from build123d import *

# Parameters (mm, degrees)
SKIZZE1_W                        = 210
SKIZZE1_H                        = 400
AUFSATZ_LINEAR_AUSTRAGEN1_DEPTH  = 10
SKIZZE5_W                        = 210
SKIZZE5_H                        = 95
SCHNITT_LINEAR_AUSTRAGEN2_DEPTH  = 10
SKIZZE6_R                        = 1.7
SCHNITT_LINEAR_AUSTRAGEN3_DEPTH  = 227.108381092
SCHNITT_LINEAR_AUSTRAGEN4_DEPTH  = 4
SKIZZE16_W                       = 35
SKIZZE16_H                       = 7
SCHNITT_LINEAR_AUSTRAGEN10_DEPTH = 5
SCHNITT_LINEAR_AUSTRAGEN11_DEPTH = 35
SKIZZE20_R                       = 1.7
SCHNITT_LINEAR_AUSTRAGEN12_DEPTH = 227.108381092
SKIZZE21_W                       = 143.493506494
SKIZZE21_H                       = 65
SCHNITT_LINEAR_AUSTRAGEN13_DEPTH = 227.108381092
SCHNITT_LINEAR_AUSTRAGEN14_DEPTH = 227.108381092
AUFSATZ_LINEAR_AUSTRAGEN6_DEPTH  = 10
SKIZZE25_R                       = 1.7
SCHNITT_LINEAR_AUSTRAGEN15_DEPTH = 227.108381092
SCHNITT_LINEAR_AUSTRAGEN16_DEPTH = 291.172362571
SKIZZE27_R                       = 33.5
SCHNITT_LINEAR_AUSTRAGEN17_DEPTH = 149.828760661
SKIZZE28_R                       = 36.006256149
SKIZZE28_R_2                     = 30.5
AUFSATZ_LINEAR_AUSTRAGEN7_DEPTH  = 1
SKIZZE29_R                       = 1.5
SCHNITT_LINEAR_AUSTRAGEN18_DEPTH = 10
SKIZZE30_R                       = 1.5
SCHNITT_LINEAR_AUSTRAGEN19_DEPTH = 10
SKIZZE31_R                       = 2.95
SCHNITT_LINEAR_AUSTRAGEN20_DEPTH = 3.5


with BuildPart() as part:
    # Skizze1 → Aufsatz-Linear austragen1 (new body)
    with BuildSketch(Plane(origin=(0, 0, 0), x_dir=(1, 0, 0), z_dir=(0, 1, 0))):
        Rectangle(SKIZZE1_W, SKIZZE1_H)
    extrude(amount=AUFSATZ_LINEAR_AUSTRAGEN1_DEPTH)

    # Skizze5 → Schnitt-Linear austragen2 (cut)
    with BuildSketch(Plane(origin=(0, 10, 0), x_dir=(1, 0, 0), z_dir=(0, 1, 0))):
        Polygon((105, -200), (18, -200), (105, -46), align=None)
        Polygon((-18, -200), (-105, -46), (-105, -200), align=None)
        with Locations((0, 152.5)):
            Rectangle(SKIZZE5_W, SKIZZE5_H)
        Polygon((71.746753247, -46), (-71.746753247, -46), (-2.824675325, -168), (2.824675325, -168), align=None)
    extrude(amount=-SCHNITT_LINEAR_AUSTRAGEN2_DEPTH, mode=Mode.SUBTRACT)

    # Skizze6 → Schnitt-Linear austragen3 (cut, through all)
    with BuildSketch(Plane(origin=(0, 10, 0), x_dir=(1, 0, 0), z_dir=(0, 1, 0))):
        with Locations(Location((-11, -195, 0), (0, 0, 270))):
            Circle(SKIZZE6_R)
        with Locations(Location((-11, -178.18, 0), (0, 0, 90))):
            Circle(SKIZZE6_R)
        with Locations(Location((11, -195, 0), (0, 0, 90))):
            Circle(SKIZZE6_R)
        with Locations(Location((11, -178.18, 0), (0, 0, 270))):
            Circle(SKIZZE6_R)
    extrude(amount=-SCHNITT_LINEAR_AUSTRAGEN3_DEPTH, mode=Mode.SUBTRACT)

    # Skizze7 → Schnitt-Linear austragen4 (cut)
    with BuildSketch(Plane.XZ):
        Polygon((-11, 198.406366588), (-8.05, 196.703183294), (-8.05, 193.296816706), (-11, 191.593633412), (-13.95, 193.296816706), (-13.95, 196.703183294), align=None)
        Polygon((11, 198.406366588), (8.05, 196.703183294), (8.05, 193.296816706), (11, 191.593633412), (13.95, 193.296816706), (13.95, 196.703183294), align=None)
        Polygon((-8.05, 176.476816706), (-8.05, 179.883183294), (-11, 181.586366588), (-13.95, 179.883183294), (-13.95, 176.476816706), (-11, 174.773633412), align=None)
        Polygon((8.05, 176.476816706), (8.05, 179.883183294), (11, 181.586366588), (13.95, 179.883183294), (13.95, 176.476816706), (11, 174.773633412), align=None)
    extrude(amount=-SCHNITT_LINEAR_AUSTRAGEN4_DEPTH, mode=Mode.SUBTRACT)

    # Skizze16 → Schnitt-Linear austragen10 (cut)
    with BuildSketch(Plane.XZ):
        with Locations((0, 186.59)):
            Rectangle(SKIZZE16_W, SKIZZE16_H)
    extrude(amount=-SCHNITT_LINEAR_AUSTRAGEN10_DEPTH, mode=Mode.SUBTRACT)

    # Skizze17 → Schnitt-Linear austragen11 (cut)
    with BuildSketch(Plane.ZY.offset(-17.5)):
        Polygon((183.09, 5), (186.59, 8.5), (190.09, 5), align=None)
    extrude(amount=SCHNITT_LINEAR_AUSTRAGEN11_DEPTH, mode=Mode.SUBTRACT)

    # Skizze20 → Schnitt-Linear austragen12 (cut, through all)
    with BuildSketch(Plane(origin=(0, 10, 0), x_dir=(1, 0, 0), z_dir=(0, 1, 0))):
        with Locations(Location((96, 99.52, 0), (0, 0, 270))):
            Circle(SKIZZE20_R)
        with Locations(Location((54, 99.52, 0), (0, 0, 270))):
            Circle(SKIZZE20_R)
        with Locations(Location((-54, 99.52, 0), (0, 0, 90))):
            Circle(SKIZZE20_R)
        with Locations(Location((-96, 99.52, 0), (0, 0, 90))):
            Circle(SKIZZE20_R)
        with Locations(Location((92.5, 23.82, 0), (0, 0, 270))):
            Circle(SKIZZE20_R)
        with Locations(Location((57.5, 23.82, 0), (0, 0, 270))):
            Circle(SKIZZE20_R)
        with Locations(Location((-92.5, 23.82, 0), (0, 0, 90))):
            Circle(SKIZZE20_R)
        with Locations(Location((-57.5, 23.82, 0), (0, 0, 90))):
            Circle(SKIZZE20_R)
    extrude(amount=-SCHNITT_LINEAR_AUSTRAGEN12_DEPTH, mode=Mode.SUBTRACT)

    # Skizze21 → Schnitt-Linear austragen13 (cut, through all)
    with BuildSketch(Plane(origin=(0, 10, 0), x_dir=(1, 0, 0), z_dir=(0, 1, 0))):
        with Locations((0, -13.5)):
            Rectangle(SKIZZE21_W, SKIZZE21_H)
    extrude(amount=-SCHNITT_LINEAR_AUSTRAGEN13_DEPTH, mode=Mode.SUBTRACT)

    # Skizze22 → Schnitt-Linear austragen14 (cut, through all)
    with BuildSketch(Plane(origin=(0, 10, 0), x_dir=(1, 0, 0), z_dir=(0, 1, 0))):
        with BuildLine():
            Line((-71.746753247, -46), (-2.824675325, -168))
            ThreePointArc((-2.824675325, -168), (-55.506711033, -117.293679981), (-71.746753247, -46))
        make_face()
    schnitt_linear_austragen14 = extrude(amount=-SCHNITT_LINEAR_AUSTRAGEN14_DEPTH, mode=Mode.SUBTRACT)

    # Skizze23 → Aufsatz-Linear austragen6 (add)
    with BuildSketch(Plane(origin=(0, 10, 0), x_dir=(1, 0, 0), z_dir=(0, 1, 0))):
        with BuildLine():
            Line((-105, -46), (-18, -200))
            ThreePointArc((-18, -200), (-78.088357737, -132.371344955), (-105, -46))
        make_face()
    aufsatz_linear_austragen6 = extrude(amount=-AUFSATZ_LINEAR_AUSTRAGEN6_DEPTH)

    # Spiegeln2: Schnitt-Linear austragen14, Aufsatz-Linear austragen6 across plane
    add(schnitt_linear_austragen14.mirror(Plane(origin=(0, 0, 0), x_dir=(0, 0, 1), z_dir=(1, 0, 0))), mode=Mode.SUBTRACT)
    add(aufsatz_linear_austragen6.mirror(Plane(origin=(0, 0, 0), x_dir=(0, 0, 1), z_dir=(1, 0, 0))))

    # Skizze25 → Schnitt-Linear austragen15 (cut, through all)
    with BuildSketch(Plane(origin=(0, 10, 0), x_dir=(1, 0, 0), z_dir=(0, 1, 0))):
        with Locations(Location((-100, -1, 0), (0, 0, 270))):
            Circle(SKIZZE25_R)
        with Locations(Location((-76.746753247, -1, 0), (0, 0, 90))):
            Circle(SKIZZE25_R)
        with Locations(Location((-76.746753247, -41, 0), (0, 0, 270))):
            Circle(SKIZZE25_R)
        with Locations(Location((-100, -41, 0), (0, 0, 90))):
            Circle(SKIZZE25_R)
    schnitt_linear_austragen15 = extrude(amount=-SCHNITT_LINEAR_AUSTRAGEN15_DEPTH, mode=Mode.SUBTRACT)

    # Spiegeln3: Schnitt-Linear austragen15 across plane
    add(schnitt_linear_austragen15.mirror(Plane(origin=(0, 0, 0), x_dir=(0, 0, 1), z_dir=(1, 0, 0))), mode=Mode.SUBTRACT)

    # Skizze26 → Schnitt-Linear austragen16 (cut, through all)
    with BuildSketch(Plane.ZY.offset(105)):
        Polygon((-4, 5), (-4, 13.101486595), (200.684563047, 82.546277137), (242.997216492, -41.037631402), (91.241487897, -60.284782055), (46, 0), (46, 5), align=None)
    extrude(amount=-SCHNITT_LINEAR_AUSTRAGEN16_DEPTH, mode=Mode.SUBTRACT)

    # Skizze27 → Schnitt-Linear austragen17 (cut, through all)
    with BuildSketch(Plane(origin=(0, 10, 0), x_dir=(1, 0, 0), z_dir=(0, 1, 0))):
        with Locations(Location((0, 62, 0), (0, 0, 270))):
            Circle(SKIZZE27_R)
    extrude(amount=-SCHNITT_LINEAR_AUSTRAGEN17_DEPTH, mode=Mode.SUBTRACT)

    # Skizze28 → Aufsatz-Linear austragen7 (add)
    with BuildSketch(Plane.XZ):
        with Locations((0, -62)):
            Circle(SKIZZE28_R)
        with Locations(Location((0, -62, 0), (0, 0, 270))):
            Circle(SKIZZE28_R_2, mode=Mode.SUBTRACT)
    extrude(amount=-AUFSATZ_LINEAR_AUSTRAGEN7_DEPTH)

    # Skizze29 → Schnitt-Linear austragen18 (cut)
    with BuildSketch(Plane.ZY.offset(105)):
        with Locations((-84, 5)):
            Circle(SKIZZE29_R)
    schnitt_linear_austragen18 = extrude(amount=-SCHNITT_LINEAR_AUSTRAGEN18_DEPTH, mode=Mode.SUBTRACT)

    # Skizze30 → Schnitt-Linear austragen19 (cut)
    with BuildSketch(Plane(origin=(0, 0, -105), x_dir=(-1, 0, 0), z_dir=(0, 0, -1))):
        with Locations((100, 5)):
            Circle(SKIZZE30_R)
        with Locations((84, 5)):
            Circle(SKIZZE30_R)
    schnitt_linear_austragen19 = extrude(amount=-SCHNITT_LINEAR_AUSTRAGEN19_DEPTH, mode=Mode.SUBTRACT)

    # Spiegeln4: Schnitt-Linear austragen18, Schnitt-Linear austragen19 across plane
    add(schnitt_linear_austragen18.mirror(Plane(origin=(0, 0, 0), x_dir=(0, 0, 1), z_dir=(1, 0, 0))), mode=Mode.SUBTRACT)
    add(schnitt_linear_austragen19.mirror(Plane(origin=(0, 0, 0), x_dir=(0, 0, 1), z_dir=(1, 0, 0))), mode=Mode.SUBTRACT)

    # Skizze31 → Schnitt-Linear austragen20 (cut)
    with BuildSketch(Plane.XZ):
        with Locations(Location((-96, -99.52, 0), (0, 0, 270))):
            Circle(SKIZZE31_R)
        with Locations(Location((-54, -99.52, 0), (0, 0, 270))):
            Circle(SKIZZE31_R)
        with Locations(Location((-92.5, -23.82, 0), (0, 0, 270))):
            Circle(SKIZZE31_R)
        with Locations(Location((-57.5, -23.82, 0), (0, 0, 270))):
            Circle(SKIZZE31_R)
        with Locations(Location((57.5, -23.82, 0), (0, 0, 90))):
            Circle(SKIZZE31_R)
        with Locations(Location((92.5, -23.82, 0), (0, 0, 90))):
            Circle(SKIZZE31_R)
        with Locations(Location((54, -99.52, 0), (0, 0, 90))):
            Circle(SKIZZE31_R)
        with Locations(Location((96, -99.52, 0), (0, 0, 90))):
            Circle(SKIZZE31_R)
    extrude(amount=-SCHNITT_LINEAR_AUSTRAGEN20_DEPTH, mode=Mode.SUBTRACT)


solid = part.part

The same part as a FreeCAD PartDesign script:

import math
import FreeCAD as App
import Part
import Sketcher
from FreeCAD import Vector
Q = App.Units.Quantity

doc = App.newDocument("Part")
body = doc.addObject("PartDesign::Body", "Body")

# Sketch on XZ plane
sketch1 = doc.addObject("Sketcher::SketchObject", "Sketch")
body.addObject(sketch1)
sketch1.AttachmentSupport = (doc.XZ_Plane, [""])
sketch1.MapMode = "FlatFace"
sketch1.addGeometry([
    Part.LineSegment(Vector(-105, -200, 0), Vector(-105, 200, 0)),
    Part.LineSegment(Vector(-105, 200, 0), Vector(105, 200, 0)),
    Part.LineSegment(Vector(105, 200, 0), Vector(105, -200, 0)),
    Part.LineSegment(Vector(105, -200, 0), Vector(-105, -200, 0)),
], False)
sketch1.addConstraint([
    Sketcher.Constraint("Coincident", 0, 2, 1, 1),
    Sketcher.Constraint("Coincident", 1, 2, 2, 1),
    Sketcher.Constraint("Coincident", 2, 2, 3, 1),
    Sketcher.Constraint("Coincident", 3, 2, 0, 1),
    Sketcher.Constraint("Vertical", 0),
    Sketcher.Constraint("Horizontal", 1),
    Sketcher.Constraint("Vertical", 2),
    Sketcher.Constraint("Horizontal", 3),
    Sketcher.Constraint("Symmetric", 0, 2, 2, 2, -1, 1),
    Sketcher.Constraint("DistanceX", 1, 1, 1, 2, 210.0),
    Sketcher.Constraint("DistanceY", 0, 1, 0, 2, 400.0),
])
pad1 = doc.addObject("PartDesign::Pad", "Pad")
body.addObject(pad1)
pad1.Profile = sketch1
pad1.Length = 10
pad1.Reversed = True

# Sketch on XZ plane
sketch2 = doc.addObject("Sketcher::SketchObject", "Sketch001")
body.addObject(sketch2)
sketch2.AttachmentSupport = (doc.XZ_Plane, [""])
sketch2.MapMode = "FlatFace"
sketch2.AttachmentOffset = App.Placement(Vector(0, 0, -10), App.Rotation())
sketch2.addGeometry([
    Part.LineSegment(Vector(18, 200, 0), Vector(105, 200, 0)),  # 0
    Part.LineSegment(Vector(105, 200, 0), Vector(105, 46, 0)),  # 1
    Part.LineSegment(Vector(105, 46, 0), Vector(18, 200, 0)),  # 2
    Part.LineSegment(Vector(-18, 200, 0), Vector(-105, 46, 0)),  # 3
    Part.LineSegment(Vector(-105, 46, 0), Vector(-105, 200, 0)),  # 4
    Part.LineSegment(Vector(-105, 200, 0), Vector(-18, 200, 0)),  # 5
    Part.LineSegment(Vector(-105, -200, 0), Vector(-105, -105, 0)),  # 6
    Part.LineSegment(Vector(-105, -105, 0), Vector(105, -105, 0)),  # 7
    Part.LineSegment(Vector(105, -105, 0), Vector(105, -200, 0)),  # 8
    Part.LineSegment(Vector(105, -200, 0), Vector(-105, -200, 0)),  # 9
    Part.LineSegment(Vector(72, 46, 0), Vector(-72, 46, 0)),  # 10
    Part.LineSegment(Vector(-72, 46, 0), Vector(-3, 168, 0)),  # 11
    Part.LineSegment(Vector(-3, 168, 0), Vector(3, 168, 0)),  # 12
    Part.LineSegment(Vector(3, 168, 0), Vector(72, 46, 0)),  # 13
], False)
sketch2.addConstraint([
    Sketcher.Constraint("Coincident", 0, 2, 1, 1),
    Sketcher.Constraint("Coincident", 1, 2, 2, 1),
    Sketcher.Constraint("Coincident", 2, 2, 0, 1),
    Sketcher.Constraint("Coincident", 3, 2, 4, 1),
    Sketcher.Constraint("Coincident", 4, 2, 5, 1),
    Sketcher.Constraint("Coincident", 5, 2, 3, 1),
    Sketcher.Constraint("Coincident", 6, 2, 7, 1),
    Sketcher.Constraint("Coincident", 7, 2, 8, 1),
    Sketcher.Constraint("Coincident", 8, 2, 9, 1),
    Sketcher.Constraint("Coincident", 9, 2, 6, 1),
    Sketcher.Constraint("Coincident", 10, 2, 11, 1),
    Sketcher.Constraint("Coincident", 11, 2, 12, 1),
    Sketcher.Constraint("Coincident", 12, 2, 13, 1),
    Sketcher.Constraint("Coincident", 13, 2, 10, 1),
    Sketcher.Constraint("Horizontal", 0),
    Sketcher.Constraint("Vertical", 1),
    Sketcher.Constraint("Vertical", 4),
    Sketcher.Constraint("Horizontal", 5),
    Sketcher.Constraint("Vertical", 6),
    Sketcher.Constraint("Horizontal", 7),
    Sketcher.Constraint("Vertical", 8),
    Sketcher.Constraint("Horizontal", 9),
    Sketcher.Constraint("Horizontal", 10),
    Sketcher.Constraint("Horizontal", 12),
    Sketcher.Constraint("Symmetric", 4, 2, 8, 2, -1, 1),
    Sketcher.Constraint("Symmetric", 0, 2, 9, 2, -1, 1),
    Sketcher.Constraint("Symmetric", 1, 2, 3, 2, -2),
    Sketcher.Constraint("Parallel", 3, 11),
    Sketcher.Constraint("Parallel", 2, 13),
    Sketcher.Constraint("Horizontal", 3, 2, 10, 2),
    Sketcher.Constraint("Equal", 0, 5),
    Sketcher.Constraint("DistanceX", 0, 1, 0, 2, 87.0),
    Sketcher.Constraint("DistanceX", 7, 1, 7, 2, 210.0),
    Sketcher.Constraint("DistanceY", 1, 2, 1, 1, 154.0),
    Sketcher.Constraint("DistanceY", 6, 1, 6, 2, 95.0),
    Sketcher.Constraint("DistanceY", -1, 1, 0, 2, 200.0),
    Sketcher.Constraint("DistanceY", -1, 1, 11, 2, 168.0),
    Sketcher.Constraint("DistanceX", 12, 1, 12, 2, 5.649351),
    Sketcher.Constraint("DistanceX", 10, 2, -1, 1, 71.746753),
])
pocket1 = doc.addObject("PartDesign::Pocket", "Pocket")
body.addObject(pocket1)
pocket1.Profile = sketch2
pocket1.Length = 10
pocket1.Reversed = True

# Sketch on XZ plane
sketch3 = doc.addObject("Sketcher::SketchObject", "Sketch002")
body.addObject(sketch3)
sketch3.AttachmentSupport = (doc.XZ_Plane, [""])
sketch3.MapMode = "FlatFace"
sketch3.AttachmentOffset = App.Placement(Vector(0, 0, -10), App.Rotation())
sketch3.addGeometry([
    Part.Circle(Vector(-11, 195, 0), Vector(0, 0, 1), 1.7),
    Part.Circle(Vector(-11, 178.2, 0), Vector(0, 0, 1), 1.7),
    Part.Circle(Vector(11, 195, 0), Vector(0, 0, 1), 1.7),
    Part.Circle(Vector(11, 178.2, 0), Vector(0, 0, 1), 1.7),
], False)
sketch3.addConstraint([
    Sketcher.Constraint("Equal", 0, 1),
    Sketcher.Constraint("Equal", 1, 2),
    Sketcher.Constraint("Equal", 2, 3),
    Sketcher.Constraint("Symmetric", 0, 3, 2, 3, -2),
    Sketcher.Constraint("Symmetric", 1, 3, 3, 3, -2),
    Sketcher.Constraint("Vertical", 0, 3, 1, 3),
    Sketcher.Constraint("Diameter", 0, 3.4),
    Sketcher.Constraint("DistanceX", 0, 3, -1, 1, 11.0),
    Sketcher.Constraint("DistanceY", -1, 1, 0, 3, 195.0),
    Sketcher.Constraint("DistanceY", -1, 1, 1, 3, 178.18),
])
pocket2 = doc.addObject("PartDesign::Pocket", "Pocket001")
body.addObject(pocket2)
pocket2.Profile = sketch3
pocket2.Type = "ThroughAll"
pocket2.Reversed = True

# Sketch on XZ plane
sketch4 = doc.addObject("Sketcher::SketchObject", "Sketch003")
body.addObject(sketch4)
sketch4.AttachmentSupport = (doc.XZ_Plane, [""])
sketch4.MapMode = "FlatFace"
sketch4.addGeometry([
    Part.LineSegment(Vector(-8.1, 196.7, 0), Vector(-11, 198.4, 0)),  # 0
    Part.LineSegment(Vector(-11, 198.4, 0), Vector(-13.9, 196.7, 0)),  # 1
    Part.LineSegment(Vector(-13.9, 196.7, 0), Vector(-13.9, 193.3, 0)),  # 2
    Part.LineSegment(Vector(-13.9, 193.3, 0), Vector(-11, 191.6, 0)),  # 3
    Part.LineSegment(Vector(-11, 191.6, 0), Vector(-8.1, 193.3, 0)),  # 4
    Part.LineSegment(Vector(-8.1, 193.3, 0), Vector(-8.1, 196.7, 0)),  # 5
    Part.LineSegment(Vector(11, 198.4, 0), Vector(8.1, 196.7, 0)),  # 6
    Part.LineSegment(Vector(8.1, 196.7, 0), Vector(8.1, 193.3, 0)),  # 7
    Part.LineSegment(Vector(8.1, 193.3, 0), Vector(11, 191.6, 0)),  # 8
    Part.LineSegment(Vector(11, 191.6, 0), Vector(13.9, 193.3, 0)),  # 9
    Part.LineSegment(Vector(13.9, 193.3, 0), Vector(13.9, 196.7, 0)),  # 10
    Part.LineSegment(Vector(13.9, 196.7, 0), Vector(11, 198.4, 0)),  # 11
    Part.LineSegment(Vector(-8.1, 176.5, 0), Vector(-8.1, 179.9, 0)),  # 12
    Part.LineSegment(Vector(-8.1, 179.9, 0), Vector(-11, 181.6, 0)),  # 13
    Part.LineSegment(Vector(-11, 181.6, 0), Vector(-13.9, 179.9, 0)),  # 14
    Part.LineSegment(Vector(-13.9, 179.9, 0), Vector(-13.9, 176.5, 0)),  # 15
    Part.LineSegment(Vector(-13.9, 176.5, 0), Vector(-11, 174.8, 0)),  # 16
    Part.LineSegment(Vector(-11, 174.8, 0), Vector(-8.1, 176.5, 0)),  # 17
    Part.LineSegment(Vector(8.1, 179.9, 0), Vector(8.1, 176.5, 0)),  # 18
    Part.LineSegment(Vector(8.1, 176.5, 0), Vector(11, 174.8, 0)),  # 19
    Part.LineSegment(Vector(11, 174.8, 0), Vector(13.9, 176.5, 0)),  # 20
    Part.LineSegment(Vector(13.9, 176.5, 0), Vector(13.9, 179.9, 0)),  # 21
    Part.LineSegment(Vector(13.9, 179.9, 0), Vector(11, 181.6, 0)),  # 22
    Part.LineSegment(Vector(11, 181.6, 0), Vector(8.1, 179.9, 0)),  # 23
], False)
sketch4.addConstraint([
    Sketcher.Constraint("Coincident", 0, 2, 1, 1),
    Sketcher.Constraint("Coincident", 1, 2, 2, 1),
    Sketcher.Constraint("Coincident", 2, 2, 3, 1),
    Sketcher.Constraint("Coincident", 3, 2, 4, 1),
    Sketcher.Constraint("Coincident", 4, 2, 5, 1),
    Sketcher.Constraint("Coincident", 5, 2, 0, 1),
    Sketcher.Constraint("Coincident", 6, 2, 7, 1),
    Sketcher.Constraint("Coincident", 7, 2, 8, 1),
    Sketcher.Constraint("Coincident", 8, 2, 9, 1),
    Sketcher.Constraint("Coincident", 9, 2, 10, 1),
    Sketcher.Constraint("Coincident", 10, 2, 11, 1),
    Sketcher.Constraint("Coincident", 11, 2, 6, 1),
    Sketcher.Constraint("Coincident", 12, 2, 13, 1),
    Sketcher.Constraint("Coincident", 13, 2, 14, 1),
    Sketcher.Constraint("Coincident", 14, 2, 15, 1),
    Sketcher.Constraint("Coincident", 15, 2, 16, 1),
    Sketcher.Constraint("Coincident", 16, 2, 17, 1),
    Sketcher.Constraint("Coincident", 17, 2, 12, 1),
    Sketcher.Constraint("Coincident", 18, 2, 19, 1),
    Sketcher.Constraint("Coincident", 19, 2, 20, 1),
    Sketcher.Constraint("Coincident", 20, 2, 21, 1),
    Sketcher.Constraint("Coincident", 21, 2, 22, 1),
    Sketcher.Constraint("Coincident", 22, 2, 23, 1),
    Sketcher.Constraint("Coincident", 23, 2, 18, 1),
    Sketcher.Constraint("Vertical", 2),
    Sketcher.Constraint("Vertical", 5),
    Sketcher.Constraint("Vertical", 7),
    Sketcher.Constraint("Vertical", 10),
    Sketcher.Constraint("Vertical", 12),
    Sketcher.Constraint("Vertical", 15),
    Sketcher.Constraint("Vertical", 18),
    Sketcher.Constraint("Vertical", 21),
    Sketcher.Constraint("Symmetric", 5, 2, 6, 2, -2),
    Sketcher.Constraint("Symmetric", 3, 2, 8, 2, -2),
    Sketcher.Constraint("Symmetric", 2, 2, 9, 2, -2),
    Sketcher.Constraint("Symmetric", 0, 2, 11, 2, -2),
    Sketcher.Constraint("Symmetric", 17, 2, 18, 2, -2),
    Sketcher.Constraint("Symmetric", 16, 2, 19, 2, -2),
    Sketcher.Constraint("Symmetric", 15, 2, 20, 2, -2),
    Sketcher.Constraint("Symmetric", 13, 2, 22, 2, -2),
    Sketcher.Constraint("Parallel", 0, 3),
    Sketcher.Constraint("Parallel", 1, 4),
    Sketcher.Constraint("Parallel", 4, 6),
    Sketcher.Constraint("Parallel", 3, 8),
    Sketcher.Constraint("Parallel", 8, 11),
    Sketcher.Constraint("Parallel", 11, 13),
    Sketcher.Constraint("Parallel", 9, 14),
    Sketcher.Constraint("Parallel", 13, 16),
    Sketcher.Constraint("Parallel", 14, 17),
    Sketcher.Constraint("Parallel", 19, 22),
    Sketcher.Constraint("Parallel", 20, 23),
    Sketcher.Constraint("Horizontal", 2, 2, 4, 2),
    Sketcher.Constraint("Horizontal", 1, 2, 5, 2),
    Sketcher.Constraint("Horizontal", 12, 2, 14, 2),
    Sketcher.Constraint("Horizontal", 15, 2, 17, 2),
    Sketcher.Constraint("Vertical", 5, 2, 12, 2),
    Sketcher.Constraint("Vertical", 3, 2, 13, 2),
    Sketcher.Constraint("Equal", 10, 12),
    Sketcher.Constraint("Angle", 0, Q("150 deg")),
    Sketcher.Constraint("DistanceX", 0, 2, -1, 1, 11.0),
    Sketcher.Constraint("DistanceX", 2, 2, 4, 2, 5.9),
    Sketcher.Constraint("DistanceY", 12, 2, 5, 2, 16.82),
    Sketcher.Constraint("DistanceY", 2, 2, 2, 1, 3.406367),
    Sketcher.Constraint("DistanceY", -1, 1, 0, 2, 198.406367),
])
pocket3 = doc.addObject("PartDesign::Pocket", "Pocket002")
body.addObject(pocket3)
pocket3.Profile = sketch4
pocket3.Length = 4

# Sketch on XZ plane
sketch5 = doc.addObject("Sketcher::SketchObject", "Sketch004")
body.addObject(sketch5)
sketch5.AttachmentSupport = (doc.XZ_Plane, [""])
sketch5.MapMode = "FlatFace"
sketch5.addGeometry([
    Part.LineSegment(Vector(-18, 190, 0), Vector(-18, 183, 0)),
    Part.LineSegment(Vector(-18, 183, 0), Vector(18, 183, 0)),
    Part.LineSegment(Vector(18, 183, 0), Vector(18, 190, 0)),
    Part.LineSegment(Vector(18, 190, 0), Vector(-18, 190, 0)),
], False)
sketch5.addConstraint([
    Sketcher.Constraint("Coincident", 0, 2, 1, 1),
    Sketcher.Constraint("Coincident", 1, 2, 2, 1),
    Sketcher.Constraint("Coincident", 2, 2, 3, 1),
    Sketcher.Constraint("Coincident", 3, 2, 0, 1),
    Sketcher.Constraint("Vertical", 0),
    Sketcher.Constraint("Horizontal", 1),
    Sketcher.Constraint("Vertical", 2),
    Sketcher.Constraint("Horizontal", 3),
    Sketcher.Constraint("DistanceX", 1, 1, 1, 2, 35.0),
    Sketcher.Constraint("DistanceY", 0, 2, 0, 1, 7.0),
    Sketcher.Constraint("DistanceX", 0, 2, -1, 1, 17.5),
    Sketcher.Constraint("DistanceY", -1, 1, 0, 2, 183.09),
])
pocket4 = doc.addObject("PartDesign::Pocket", "Pocket003")
body.addObject(pocket4)
pocket4.Profile = sketch5
pocket4.Length = 5

# Sketch on YZ plane
sketch6 = doc.addObject("Sketcher::SketchObject", "Sketch005")
body.addObject(sketch6)
sketch6.AttachmentSupport = (doc.YZ_Plane, [""])
sketch6.MapMode = "FlatFace"
sketch6.AttachmentOffset = App.Placement(Vector(0, 0, 17.5), App.Rotation())
sketch6.addGeometry([
    Part.LineSegment(Vector(8.5, 186.6, 0), Vector(5, 183.1, 0)),
    Part.LineSegment(Vector(5, 183.1, 0), Vector(5, 190.1, 0)),
    Part.LineSegment(Vector(5, 190.1, 0), Vector(8.5, 186.6, 0)),
], False)
sketch6.addConstraint([
    Sketcher.Constraint("Coincident", 0, 2, 1, 1),
    Sketcher.Constraint("Coincident", 1, 2, 2, 1),
    Sketcher.Constraint("Coincident", 2, 2, 0, 1),
    Sketcher.Constraint("Vertical", 1),
    Sketcher.Constraint("Perpendicular", 0, 2),
    Sketcher.Constraint("Equal", 0, 2),
    Sketcher.Constraint("DistanceY", 1, 1, 1, 2, 7.0),
    Sketcher.Constraint("DistanceX", -1, 1, 0, 2, 5.0),
    Sketcher.Constraint("DistanceY", -1, 1, 0, 2, 183.09),
])
pocket5 = doc.addObject("PartDesign::Pocket", "Pocket004")
body.addObject(pocket5)
pocket5.Profile = sketch6
pocket5.Length = 35

# Sketch on XZ plane
sketch7 = doc.addObject("Sketcher::SketchObject", "Sketch006")
body.addObject(sketch7)
sketch7.AttachmentSupport = (doc.XZ_Plane, [""])
sketch7.MapMode = "FlatFace"
sketch7.AttachmentOffset = App.Placement(Vector(0, 0, -10), App.Rotation())
sketch7.addGeometry([
    Part.Circle(Vector(96, -99.5, 0), Vector(0, 0, 1), 1.7),  # 0
    Part.Circle(Vector(54, -99.5, 0), Vector(0, 0, 1), 1.7),  # 1
    Part.Circle(Vector(-54, -99.5, 0), Vector(0, 0, 1), 1.7),  # 2
    Part.Circle(Vector(-96, -99.5, 0), Vector(0, 0, 1), 1.7),  # 3
    Part.Circle(Vector(92.5, -23.8, 0), Vector(0, 0, 1), 1.7),  # 4
    Part.Circle(Vector(57.5, -23.8, 0), Vector(0, 0, 1), 1.7),  # 5
    Part.Circle(Vector(-92.5, -23.8, 0), Vector(0, 0, 1), 1.7),  # 6
    Part.Circle(Vector(-57.5, -23.8, 0), Vector(0, 0, 1), 1.7),  # 7
], False)
sketch7.addConstraint([
    Sketcher.Constraint("Equal", 0, 1),
    Sketcher.Constraint("Equal", 1, 2),
    Sketcher.Constraint("Equal", 2, 3),
    Sketcher.Constraint("Equal", 3, 4),
    Sketcher.Constraint("Equal", 4, 5),
    Sketcher.Constraint("Equal", 5, 6),
    Sketcher.Constraint("Equal", 6, 7),
    Sketcher.Constraint("Symmetric", 1, 3, 2, 3, -2),
    Sketcher.Constraint("Symmetric", 0, 3, 3, 3, -2),
    Sketcher.Constraint("Symmetric", 4, 3, 6, 3, -2),
    Sketcher.Constraint("Symmetric", 5, 3, 7, 3, -2),
    Sketcher.Constraint("Horizontal", 0, 3, 1, 3),
    Sketcher.Constraint("Horizontal", 4, 3, 5, 3),
    Sketcher.Constraint("Diameter", 0, 3.4),
    Sketcher.Constraint("DistanceX", -1, 1, 0, 3, 96.0),
    Sketcher.Constraint("DistanceX", -1, 1, 1, 3, 54.0),
    Sketcher.Constraint("DistanceX", 5, 3, 4, 3, 35.0),
    Sketcher.Constraint("DistanceX", 6, 3, 5, 3, 150.0),
    Sketcher.Constraint("DistanceY", 0, 3, 4, 3, 75.7),
    Sketcher.Constraint("DistanceY", 0, 3, -1, 1, 99.52),
])
pocket6 = doc.addObject("PartDesign::Pocket", "Pocket005")
body.addObject(pocket6)
pocket6.Profile = sketch7
pocket6.Type = "ThroughAll"
pocket6.Reversed = True

# Sketch on XZ plane
sketch8 = doc.addObject("Sketcher::SketchObject", "Sketch007")
body.addObject(sketch8)
sketch8.AttachmentSupport = (doc.XZ_Plane, [""])
sketch8.MapMode = "FlatFace"
sketch8.AttachmentOffset = App.Placement(Vector(0, 0, -10), App.Rotation())
sketch8.addGeometry([
    Part.LineSegment(Vector(-72, -19, 0), Vector(-72, 46, 0)),
    Part.LineSegment(Vector(-72, 46, 0), Vector(72, 46, 0)),
    Part.LineSegment(Vector(72, 46, 0), Vector(72, -19, 0)),
    Part.LineSegment(Vector(72, -19, 0), Vector(-72, -19, 0)),
], False)
sketch8.addConstraint([
    Sketcher.Constraint("Coincident", 0, 2, 1, 1),
    Sketcher.Constraint("Coincident", 1, 2, 2, 1),
    Sketcher.Constraint("Coincident", 2, 2, 3, 1),
    Sketcher.Constraint("Coincident", 3, 2, 0, 1),
    Sketcher.Constraint("Vertical", 0),
    Sketcher.Constraint("Horizontal", 1),
    Sketcher.Constraint("Vertical", 2),
    Sketcher.Constraint("Horizontal", 3),
    Sketcher.Constraint("DistanceY", 0, 1, 0, 2, 65.0),
    Sketcher.Constraint("DistanceY", -1, 1, 0, 2, 46.0),
    Sketcher.Constraint("DistanceX", 1, 1, 1, 2, 143.493506),
    Sketcher.Constraint("DistanceX", 0, 2, -1, 1, 71.746753),
])
pocket7 = doc.addObject("PartDesign::Pocket", "Pocket006")
body.addObject(pocket7)
pocket7.Profile = sketch8
pocket7.Type = "ThroughAll"
pocket7.Reversed = True

# Sketch on XZ plane
sketch9 = doc.addObject("Sketcher::SketchObject", "Sketch008")
body.addObject(sketch9)
sketch9.AttachmentSupport = (doc.XZ_Plane, [""])
sketch9.MapMode = "FlatFace"
sketch9.AttachmentOffset = App.Placement(Vector(0, 0, -10), App.Rotation())
sketch9.addGeometry([
    Part.LineSegment(Vector(-3, 168, 0), Vector(-72, 46, 0)),
    Part.ArcOfCircle(Part.Circle(Vector(56, 54, 0), Vector(0, 0, 1), 128), math.radians(117), math.radians(184)),
], False)
sketch9.addConstraint([
    Sketcher.Constraint("Coincident", 0, 1, 1, 1),
    Sketcher.Constraint("Coincident", 1, 2, 0, 2),
    Sketcher.Constraint("DistanceY", -1, 1, 0, 1, 168.0),
    Sketcher.Constraint("DistanceY", -1, 1, 1, 2, 46.0),
    Sketcher.Constraint("Radius", 1, 127.738656),
    Sketcher.Constraint("Distance", 0, 140.122278),
    Sketcher.Constraint("DistanceX", -1, 1, 1, 3, 55.711264),
])
pocket8 = doc.addObject("PartDesign::Pocket", "Pocket007")
body.addObject(pocket8)
pocket8.Profile = sketch9
pocket8.Type = "ThroughAll"
pocket8.Reversed = True

# Sketch on XZ plane
sketch10 = doc.addObject("Sketcher::SketchObject", "Sketch009")
body.addObject(sketch10)
sketch10.AttachmentSupport = (doc.XZ_Plane, [""])
sketch10.MapMode = "FlatFace"
sketch10.AttachmentOffset = App.Placement(Vector(0, 0, -10), App.Rotation())
sketch10.addGeometry([
    Part.LineSegment(Vector(-18, 200, 0), Vector(-105, 46, 0)),
    Part.ArcOfCircle(Part.Circle(Vector(109, 27, 0), Vector(0, 0, 1), 215), math.radians(126), math.radians(175)),
], False)
sketch10.addConstraint([
    Sketcher.Constraint("Coincident", 0, 1, 1, 1),
    Sketcher.Constraint("Coincident", 1, 2, 0, 2),
    Sketcher.Constraint("DistanceX", 0, 1, -1, 1, 18.0),
    Sketcher.Constraint("DistanceY", -1, 1, 0, 1, 200.0),
    Sketcher.Constraint("DistanceX", 1, 2, -1, 1, 105.0),
    Sketcher.Constraint("DistanceY", -1, 1, 1, 2, 46.0),
    Sketcher.Constraint("Radius", 1, 214.782015),
])
pad2 = doc.addObject("PartDesign::Pad", "Pad001")
body.addObject(pad2)
pad2.Profile = sketch10
pad2.Length = 10
doc.recompute()

mirrored = doc.addObject("PartDesign::Mirrored", "Mirrored")
body.addObject(mirrored)
mirrored.Originals = [pocket8, pad2]
mirrored.MirrorPlane = (doc.YZ_Plane, [""])
body.Tip = mirrored

# Sketch on XZ plane
sketch11 = doc.addObject("Sketcher::SketchObject", "Sketch010")
body.addObject(sketch11)
sketch11.AttachmentSupport = (doc.XZ_Plane, [""])
sketch11.MapMode = "FlatFace"
sketch11.AttachmentOffset = App.Placement(Vector(0, 0, -10), App.Rotation())
sketch11.addGeometry([
    Part.Circle(Vector(-100, 1, 0), Vector(0, 0, 1), 1.7),
    Part.Circle(Vector(-76.7, 1, 0), Vector(0, 0, 1), 1.7),
    Part.Circle(Vector(-76.7, 41, 0), Vector(0, 0, 1), 1.7),
    Part.Circle(Vector(-100, 41, 0), Vector(0, 0, 1), 1.7),
], False)
sketch11.addConstraint([
    Sketcher.Constraint("Equal", 0, 1),
    Sketcher.Constraint("Equal", 1, 2),
    Sketcher.Constraint("Equal", 2, 3),
    Sketcher.Constraint("Horizontal", 0, 3, 1, 3),
    Sketcher.Constraint("Horizontal", 2, 3, 3, 3),
    Sketcher.Constraint("Vertical", 1, 3, 2, 3),
    Sketcher.Constraint("Vertical", 0, 3, 3, 3),
    Sketcher.Constraint("Diameter", 0, 3.4),
    Sketcher.Constraint("DistanceX", 0, 3, -1, 1, 100.0),
    Sketcher.Constraint("DistanceY", -1, 1, 0, 3, 1.0),
    Sketcher.Constraint("DistanceY", -1, 1, 2, 3, 41.0),
    Sketcher.Constraint("DistanceX", 1, 3, -1, 1, 76.746753),
])
pocket9 = doc.addObject("PartDesign::Pocket", "Pocket008")
body.addObject(pocket9)
pocket9.Profile = sketch11
pocket9.Type = "ThroughAll"
pocket9.Reversed = True
doc.recompute()

mirrored2 = doc.addObject("PartDesign::Mirrored", "Mirrored001")
body.addObject(mirrored2)
mirrored2.Originals = [pocket9]
mirrored2.MirrorPlane = (doc.YZ_Plane, [""])
body.Tip = mirrored2

# Sketch on YZ plane
sketch12 = doc.addObject("Sketcher::SketchObject", "Sketch011")
body.addObject(sketch12)
sketch12.AttachmentSupport = (doc.YZ_Plane, [""])
sketch12.MapMode = "FlatFace"
sketch12.AttachmentOffset = App.Placement(Vector(0, 0, -105), App.Rotation())
sketch12.addGeometry([
    Part.LineSegment(Vector(13, -4, 0), Vector(5, -4, 0)),  # 0
    Part.LineSegment(Vector(5, -4, 0), Vector(5, 46, 0)),  # 1
    Part.LineSegment(Vector(5, 46, 0), Vector(0, 46, 0)),  # 2
    Part.LineSegment(Vector(0, 46, 0), Vector(-60, 91, 0)),  # 3
    Part.LineSegment(Vector(-60, 91, 0), Vector(-41, 243, 0)),  # 4
    Part.LineSegment(Vector(-41, 243, 0), Vector(83, 201, 0)),  # 5
    Part.LineSegment(Vector(83, 201, 0), Vector(13, -4, 0)),  # 6
], False)
sketch12.addConstraint([
    Sketcher.Constraint("Coincident", 0, 2, 1, 1),
    Sketcher.Constraint("Coincident", 1, 2, 2, 1),
    Sketcher.Constraint("Coincident", 2, 2, 3, 1),
    Sketcher.Constraint("Coincident", 3, 2, 4, 1),
    Sketcher.Constraint("Coincident", 4, 2, 5, 1),
    Sketcher.Constraint("Coincident", 5, 2, 6, 1),
    Sketcher.Constraint("Coincident", 6, 2, 0, 1),
    Sketcher.Constraint("Horizontal", 0),
    Sketcher.Constraint("Vertical", 1),
    Sketcher.Constraint("Horizontal", 2),
    Sketcher.Constraint("PointOnObject", 2, 2, -2),
    Sketcher.Constraint("DistanceX", 2, 2, 2, 1, 5.0),
    Sketcher.Constraint("DistanceY", 1, 1, 1, 2, 50.0),
    Sketcher.Constraint("DistanceY", 0, 2, -1, 1, 4.0),
    Sketcher.Constraint("Distance", 3, 75.372722),
    Sketcher.Constraint("Distance", 5, 130.626732),
    Sketcher.Constraint("Distance", 6, 216.144279),
    Sketcher.Constraint("DistanceX", 0, 2, 0, 1, 8.101487),
    Sketcher.Constraint("DistanceX", 4, 2, -1, 1, 41.037631),
    Sketcher.Constraint("DistanceX", 3, 2, 4, 2, 19.247151),
    Sketcher.Constraint("DistanceY", 3, 2, 4, 2, 151.755729),
])
pocket10 = doc.addObject("PartDesign::Pocket", "Pocket009")
body.addObject(pocket10)
pocket10.Profile = sketch12
pocket10.Type = "ThroughAll"
pocket10.Reversed = True

# Sketch on XZ plane
sketch13 = doc.addObject("Sketcher::SketchObject", "Sketch012")
body.addObject(sketch13)
sketch13.AttachmentSupport = (doc.XZ_Plane, [""])
sketch13.MapMode = "FlatFace"
sketch13.AttachmentOffset = App.Placement(Vector(0, 0, -10), App.Rotation())
sketch13.addGeometry(Part.Circle(Vector(0, -62, 0), Vector(0, 0, 1), 34), False)
sketch13.addConstraint([
    Sketcher.Constraint("PointOnObject", 0, 3, -2),
    Sketcher.Constraint("Diameter", 0, 67.0),
    Sketcher.Constraint("DistanceY", 0, 3, -1, 1, 62.0),
])
pocket11 = doc.addObject("PartDesign::Pocket", "Pocket010")
body.addObject(pocket11)
pocket11.Profile = sketch13
pocket11.Type = "ThroughAll"
pocket11.Reversed = True

# Sketch on XZ plane
sketch14 = doc.addObject("Sketcher::SketchObject", "Sketch013")
body.addObject(sketch14)
sketch14.AttachmentSupport = (doc.XZ_Plane, [""])
sketch14.MapMode = "FlatFace"
sketch14.addGeometry([
    Part.Circle(Vector(0, -62, 0), Vector(0, 0, 1), 36),
    Part.Circle(Vector(0, -62, 0), Vector(0, 0, 1), 30),
], False)
sketch14.addConstraint([
    Sketcher.Constraint("Coincident", 1, 3, 0, 3),
    Sketcher.Constraint("PointOnObject", 0, 3, -2),
    Sketcher.Constraint("Diameter", 1, 61.0),
    Sketcher.Constraint("DistanceY", 0, 3, -1, 1, 62.0),
    Sketcher.Constraint("Diameter", 0, 72.012512),
])
pad3 = doc.addObject("PartDesign::Pad", "Pad002")
body.addObject(pad3)
pad3.Profile = sketch14
pad3.Length = 1
pad3.Reversed = True

# Sketch on YZ plane
sketch15 = doc.addObject("Sketcher::SketchObject", "Sketch014")
body.addObject(sketch15)
sketch15.AttachmentSupport = (doc.YZ_Plane, [""])
sketch15.MapMode = "FlatFace"
sketch15.AttachmentOffset = App.Placement(Vector(0, 0, -105), App.Rotation())
sketch15.addGeometry(Part.Circle(Vector(5, -84, 0), Vector(0, 0, 1), 1.5), False)
sketch15.addConstraint([
    Sketcher.Constraint("Diameter", 0, 3.0),
    Sketcher.Constraint("DistanceX", -1, 1, 0, 3, 5.0),
    Sketcher.Constraint("DistanceY", 0, 3, -1, 1, 84.0),
])
pocket12 = doc.addObject("PartDesign::Pocket", "Pocket011")
body.addObject(pocket12)
pocket12.Profile = sketch15
pocket12.Length = 10
pocket12.Reversed = True

# Sketch on XY plane
sketch16 = doc.addObject("Sketcher::SketchObject", "Sketch015")
body.addObject(sketch16)
sketch16.AttachmentSupport = (doc.XY_Plane, [""])
sketch16.MapMode = "FlatFace"
sketch16.AttachmentOffset = App.Placement(Vector(0, 0, -105), App.Rotation())
sketch16.addGeometry([
    Part.Circle(Vector(-100, 5, 0), Vector(0, 0, 1), 1.5),
    Part.Circle(Vector(-84, 5, 0), Vector(0, 0, 1), 1.5),
], False)
sketch16.addConstraint([
    Sketcher.Constraint("Equal", 0, 1),
    Sketcher.Constraint("Horizontal", 0, 3, 1, 3),
    Sketcher.Constraint("Diameter", 0, 3.0),
    Sketcher.Constraint("DistanceX", 0, 3, -1, 1, 100.0),
    Sketcher.Constraint("DistanceY", -1, 1, 0, 3, 5.0),
    Sketcher.Constraint("DistanceX", 1, 3, -1, 1, 84.0),
])
pocket13 = doc.addObject("PartDesign::Pocket", "Pocket012")
body.addObject(pocket13)
pocket13.Profile = sketch16
pocket13.Length = 10
pocket13.Reversed = True
doc.recompute()

mirrored3 = doc.addObject("PartDesign::Mirrored", "Mirrored002")
body.addObject(mirrored3)
mirrored3.Originals = [pocket12, pocket13]
mirrored3.MirrorPlane = (doc.YZ_Plane, [""])
body.Tip = mirrored3

# Sketch on XZ plane
sketch17 = doc.addObject("Sketcher::SketchObject", "Sketch016")
body.addObject(sketch17)
sketch17.AttachmentSupport = (doc.XZ_Plane, [""])
sketch17.MapMode = "FlatFace"
sketch17.addGeometry([
    Part.Circle(Vector(-96, -99.5, 0), Vector(0, 0, 1), 3),  # 0
    Part.Circle(Vector(-54, -99.5, 0), Vector(0, 0, 1), 3),  # 1
    Part.Circle(Vector(-92.5, -23.8, 0), Vector(0, 0, 1), 3),  # 2
    Part.Circle(Vector(-57.5, -23.8, 0), Vector(0, 0, 1), 3),  # 3
    Part.Circle(Vector(57.5, -23.8, 0), Vector(0, 0, 1), 3),  # 4
    Part.Circle(Vector(92.5, -23.8, 0), Vector(0, 0, 1), 3),  # 5
    Part.Circle(Vector(54, -99.5, 0), Vector(0, 0, 1), 3),  # 6
    Part.Circle(Vector(96, -99.5, 0), Vector(0, 0, 1), 3),  # 7
], False)
sketch17.addConstraint([
    Sketcher.Constraint("Equal", 0, 1),
    Sketcher.Constraint("Equal", 1, 2),
    Sketcher.Constraint("Equal", 2, 3),
    Sketcher.Constraint("Equal", 3, 4),
    Sketcher.Constraint("Equal", 4, 5),
    Sketcher.Constraint("Equal", 5, 6),
    Sketcher.Constraint("Equal", 6, 7),
    Sketcher.Constraint("Symmetric", 3, 3, 4, 3, -2),
    Sketcher.Constraint("Symmetric", 2, 3, 5, 3, -2),
    Sketcher.Constraint("Symmetric", 1, 3, 6, 3, -2),
    Sketcher.Constraint("Symmetric", 0, 3, 7, 3, -2),
    Sketcher.Constraint("Horizontal", 0, 3, 1, 3),
    Sketcher.Constraint("Horizontal", 2, 3, 3, 3),
    Sketcher.Constraint("Diameter", 0, 5.9),
    Sketcher.Constraint("DistanceX", 0, 3, -1, 1, 96.0),
    Sketcher.Constraint("DistanceX", 1, 3, -1, 1, 54.0),
    Sketcher.Constraint("DistanceX", 2, 3, 3, 3, 35.0),
    Sketcher.Constraint("DistanceX", 3, 3, 4, 3, 115.0),
    Sketcher.Constraint("DistanceY", 0, 3, 2, 3, 75.7),
    Sketcher.Constraint("DistanceY", 0, 3, -1, 1, 99.52),
])
pocket14 = doc.addObject("PartDesign::Pocket", "Pocket013")
body.addObject(pocket14)
pocket14.Profile = sketch17
pocket14.Length = 3.5

doc.recompute()
